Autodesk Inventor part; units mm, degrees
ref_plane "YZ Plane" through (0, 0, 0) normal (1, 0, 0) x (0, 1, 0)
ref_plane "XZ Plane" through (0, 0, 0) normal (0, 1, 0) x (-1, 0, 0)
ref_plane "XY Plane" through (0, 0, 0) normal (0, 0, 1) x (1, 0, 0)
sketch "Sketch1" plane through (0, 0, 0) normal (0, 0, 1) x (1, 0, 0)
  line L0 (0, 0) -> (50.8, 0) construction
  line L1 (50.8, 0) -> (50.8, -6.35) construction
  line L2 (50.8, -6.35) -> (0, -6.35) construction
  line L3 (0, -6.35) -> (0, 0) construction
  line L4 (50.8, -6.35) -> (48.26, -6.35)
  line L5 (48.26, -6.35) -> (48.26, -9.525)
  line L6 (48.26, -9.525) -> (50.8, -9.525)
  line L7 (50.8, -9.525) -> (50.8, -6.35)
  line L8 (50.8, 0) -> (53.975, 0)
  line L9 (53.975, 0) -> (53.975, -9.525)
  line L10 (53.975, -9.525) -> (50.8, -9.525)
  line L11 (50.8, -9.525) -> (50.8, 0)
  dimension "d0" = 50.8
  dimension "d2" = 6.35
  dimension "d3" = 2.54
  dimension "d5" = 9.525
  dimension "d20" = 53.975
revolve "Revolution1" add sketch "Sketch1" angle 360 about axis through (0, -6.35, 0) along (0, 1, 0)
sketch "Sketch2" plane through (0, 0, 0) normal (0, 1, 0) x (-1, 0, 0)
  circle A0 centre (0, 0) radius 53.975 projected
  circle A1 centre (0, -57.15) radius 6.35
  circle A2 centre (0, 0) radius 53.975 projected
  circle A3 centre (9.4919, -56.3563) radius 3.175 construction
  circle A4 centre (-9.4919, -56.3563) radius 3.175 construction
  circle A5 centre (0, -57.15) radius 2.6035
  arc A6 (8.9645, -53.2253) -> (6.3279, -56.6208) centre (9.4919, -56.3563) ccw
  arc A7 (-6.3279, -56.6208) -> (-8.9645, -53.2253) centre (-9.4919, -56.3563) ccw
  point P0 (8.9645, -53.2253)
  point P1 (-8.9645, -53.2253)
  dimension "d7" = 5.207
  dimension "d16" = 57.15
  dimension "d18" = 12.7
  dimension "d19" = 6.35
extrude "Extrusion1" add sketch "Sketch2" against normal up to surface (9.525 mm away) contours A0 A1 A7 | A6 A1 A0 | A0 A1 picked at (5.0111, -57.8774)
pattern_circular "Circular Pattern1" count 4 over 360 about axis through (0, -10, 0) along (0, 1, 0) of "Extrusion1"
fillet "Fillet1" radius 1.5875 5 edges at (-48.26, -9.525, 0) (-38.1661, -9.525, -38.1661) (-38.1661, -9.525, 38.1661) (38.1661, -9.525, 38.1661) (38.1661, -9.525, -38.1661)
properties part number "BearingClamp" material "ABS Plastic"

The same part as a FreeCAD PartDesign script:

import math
import FreeCAD as App
import Part
import Sketcher
Q = App.Units.Quantity


def edges_at(feature, points):
    """Names of the edges that pass closest to the given points."""
    edges = feature.Shape.Edges
    near = lambda p: min(range(len(edges)), key=lambda i: edges[i].distToShape(Part.Vertex(*p))[0])
    return sorted({f"Edge{near(p) + 1}" for p in points})

doc = App.newDocument("Part")
body = doc.addObject("PartDesign::Body", "Body")

# Sketch on XY plane
sketch1 = doc.addObject("Sketcher::SketchObject", "Sketch")
body.addObject(sketch1)
sketch1.AttachmentSupport = (doc.XY_Plane, [""])
sketch1.MapMode = "FlatFace"
sketch1.addGeometry(Part.LineSegment(App.Vector(48.3, -9.5, 0), App.Vector(54, -9.5, 0)), False)
sketch1.addGeometry(Part.LineSegment(App.Vector(54, -9.5, 0), App.Vector(54, 0, 0)), False)
sketch1.addGeometry(Part.LineSegment(App.Vector(54, 0, 0), App.Vector(50.8, 0, 0)), False)
sketch1.addGeometry(Part.LineSegment(App.Vector(50.8, 0, 0), App.Vector(50.8, -6.3, 0)), False)
sketch1.addGeometry(Part.LineSegment(App.Vector(50.8, -6.3, 0), App.Vector(48.3, -6.3, 0)), False)
sketch1.addGeometry(Part.LineSegment(App.Vector(48.3, -6.3, 0), App.Vector(48.3, -9.5, 0)), False)
sketch1.addConstraint(Sketcher.Constraint("Coincident", 0, 2, 1, 1))
sketch1.addConstraint(Sketcher.Constraint("Coincident", 1, 2, 2, 1))
sketch1.addConstraint(Sketcher.Constraint("Coincident", 2, 2, 3, 1))
sketch1.addConstraint(Sketcher.Constraint("Coincident", 3, 2, 4, 1))
sketch1.addConstraint(Sketcher.Constraint("Coincident", 4, 2, 5, 1))
sketch1.addConstraint(Sketcher.Constraint("Coincident", 5, 2, 0, 1))
sketch1.addConstraint(Sketcher.Constraint("Horizontal", 0))
sketch1.addConstraint(Sketcher.Constraint("Vertical", 1))
sketch1.addConstraint(Sketcher.Constraint("Horizontal", 2))
sketch1.addConstraint(Sketcher.Constraint("Vertical", 3))
sketch1.addConstraint(Sketcher.Constraint("Horizontal", 4))
sketch1.addConstraint(Sketcher.Constraint("Vertical", 5))
sketch1.addConstraint(Sketcher.Constraint("PointOnObject", 1, 2, -1))
sketch1.addConstraint(Sketcher.Constraint("Equal", 2, 5))
sketch1.addConstraint(Sketcher.Constraint("DistanceX", 4, 2, 4, 1, Q("0.1 in")))
sketch1.addConstraint(Sketcher.Constraint("DistanceX", -1, 1, 2, 2, Q("2 in")))
sketch1.addConstraint(Sketcher.Constraint("DistanceY", 3, 2, 3, 1, Q("0.25 in")))
sketch1.addConstraint(Sketcher.Constraint("DistanceY", 1, 1, 1, 2, Q("0.375 in")))
revolution = doc.addObject("PartDesign::Revolution", "Revolution")
body.addObject(revolution)
revolution.Profile = sketch1
revolution.ReferenceAxis = (sketch1, ["V_Axis"])
revolution.Angle = 360

# Sketch on XZ plane
sketch2 = doc.addObject("Sketcher::SketchObject", "Sketch001")
body.addObject(sketch2)
sketch2.AttachmentSupport = (doc.XZ_Plane, [""])
sketch2.MapMode = "FlatFace"
sketch2.addGeometry(Part.ArcOfCircle(Part.Circle(App.Vector(9.5, -56.4, 0), App.Vector(0, 0, 1), 3.2), math.radians(100), math.radians(185)), False)
sketch2.addGeometry(Part.ArcOfCircle(Part.Circle(App.Vector(0, -57.1, 0), App.Vector(0, 0, 1), 6.3), math.radians(175), math.radians(365)), False)
sketch2.addGeometry(Part.ArcOfCircle(Part.Circle(App.Vector(-9.5, -56.4, 0), App.Vector(0, 0, 1), 3.2), math.radians(-5), math.radians(80)), False)
sketch2.addGeometry(Part.ArcOfCircle(Part.Circle(App.Vector(0, 0, 0), App.Vector(0, 0, 1), 54), math.radians(-99.56), math.radians(-80.44)), False)
sketch2.addGeometry(Part.Circle(App.Vector(0, -57.1, 0), App.Vector(0, 0, 1), 2.6), False)
sketch2.addConstraint(Sketcher.Constraint("Tangent", 0, 2, 1, 2))
sketch2.addConstraint(Sketcher.Constraint("Tangent", 1, 1, 2, 1))
sketch2.addConstraint(Sketcher.Constraint("Tangent", 2, 2, 3, 1))
sketch2.addConstraint(Sketcher.Constraint("Tangent", 3, 2, 0, 1))
sketch2.addConstraint(Sketcher.Constraint("Coincident", 3, 3, -1, 1))
sketch2.addConstraint(Sketcher.Constraint("Coincident", 4, 3, 1, 3))
sketch2.addConstraint(Sketcher.Constraint("Equal", 0, 2))
sketch2.addConstraint(Sketcher.Constraint("PointOnObject", 1, 3, -2))
sketch2.addConstraint(Sketcher.Constraint("Radius", 1, Q("0.25 in")))
sketch2.addConstraint(Sketcher.Constraint("Diameter", 4, Q("0.205 in")))
sketch2.addConstraint(Sketcher.Constraint("Radius", 0, Q("0.125 in")))
sketch2.addConstraint(Sketcher.Constraint("DistanceY", 1, 3, -1, 1, Q("2.25 in")))
sketch2.addConstraint(Sketcher.Constraint("Radius", 3, Q("2.125 in")))
pad1 = doc.addObject("PartDesign::Pad", "Pad")
body.addObject(pad1)
pad1.Profile = sketch2
pad1.Length = Q("0.375 in")
doc.recompute()

polarpattern = doc.addObject("PartDesign::PolarPattern", "PolarPattern")
body.addObject(polarpattern)
polarpattern.Originals = [pad1]
polarpattern.Axis = (doc.Y_Axis, [""])
polarpattern.Angle = 360
polarpattern.Occurrences = 4
body.Tip = polarpattern
doc.recompute()

fillet = doc.addObject("PartDesign::Fillet", "Fillet")
body.addObject(fillet)
fillet.Base = (polarpattern, edges_at(polarpattern, [
    (-48.26, -9.525, 0),
    (-38.166, -9.525, -38.166),
    (-38.166, -9.525, 38.166),
    (38.166, -9.525, 38.166),
    (38.166, -9.525, -38.166),
]))
fillet.Radius = Q("0.0625 in")

doc.recompute()
